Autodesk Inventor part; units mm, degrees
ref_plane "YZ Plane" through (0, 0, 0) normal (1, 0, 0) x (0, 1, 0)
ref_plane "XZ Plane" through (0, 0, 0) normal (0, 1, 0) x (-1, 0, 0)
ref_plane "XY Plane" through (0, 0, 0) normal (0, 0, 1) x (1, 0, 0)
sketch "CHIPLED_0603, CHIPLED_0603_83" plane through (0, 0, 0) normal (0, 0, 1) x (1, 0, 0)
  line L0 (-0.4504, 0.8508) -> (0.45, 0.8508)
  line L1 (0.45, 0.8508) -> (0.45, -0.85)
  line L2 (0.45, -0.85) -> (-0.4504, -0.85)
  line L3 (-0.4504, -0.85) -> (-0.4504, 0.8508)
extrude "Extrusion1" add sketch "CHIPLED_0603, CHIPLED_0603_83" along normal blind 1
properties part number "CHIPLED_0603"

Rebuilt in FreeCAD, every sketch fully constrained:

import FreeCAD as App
import Part
import Sketcher
Q = App.Units.Quantity


def add_polygon(sketch, points):
    """Adds a closed chain of lines whose ends are joined by coincident constraints."""
    first, n = sketch.GeometryCount, len(points)
    for a, b in zip(points, points[1:] + points[:1]):
        sketch.addGeometry(Part.LineSegment(App.Vector(*a, 0), App.Vector(*b, 0)), False)
    for i in range(n):
        sketch.addConstraint(Sketcher.Constraint("Coincident", first + i, 2, first + (i + 1) % n, 1))

doc = App.newDocument("Part")
body = doc.addObject("PartDesign::Body", "Body")

# Sketch on XY plane
sketch1 = doc.addObject("Sketcher::SketchObject", "Sketch")
body.addObject(sketch1)
sketch1.AttachmentSupport = (doc.XY_Plane, [""])
sketch1.MapMode = "FlatFace"
add_polygon(sketch1, [(0.5, 0.9), (-0.5, 0.9), (-0.5, -0.8), (0.5, -0.8)])  # lines 0-3
sketch1.addConstraint([
    Sketcher.Constraint("Horizontal", 0),
    Sketcher.Constraint("Vertical", 1),
    Sketcher.Constraint("Horizontal", 2),
    Sketcher.Constraint("Vertical", 3),
    Sketcher.Constraint("DistanceY", 1, 2, -1, 1, Q("0.85 mm")),
    Sketcher.Constraint("DistanceX", -1, 1, 2, 2, Q("0.45 mm")),
    Sketcher.Constraint("DistanceX", 0, 2, 0, 1, Q("0.9004 mm")),
    Sketcher.Constraint("DistanceY", 1, 2, 1, 1, Q("1.7008 mm")),
])
pad1 = doc.addObject("PartDesign::Pad", "Pad")
body.addObject(pad1)
pad1.Profile = sketch1
pad1.Length = 1

doc.recompute()
